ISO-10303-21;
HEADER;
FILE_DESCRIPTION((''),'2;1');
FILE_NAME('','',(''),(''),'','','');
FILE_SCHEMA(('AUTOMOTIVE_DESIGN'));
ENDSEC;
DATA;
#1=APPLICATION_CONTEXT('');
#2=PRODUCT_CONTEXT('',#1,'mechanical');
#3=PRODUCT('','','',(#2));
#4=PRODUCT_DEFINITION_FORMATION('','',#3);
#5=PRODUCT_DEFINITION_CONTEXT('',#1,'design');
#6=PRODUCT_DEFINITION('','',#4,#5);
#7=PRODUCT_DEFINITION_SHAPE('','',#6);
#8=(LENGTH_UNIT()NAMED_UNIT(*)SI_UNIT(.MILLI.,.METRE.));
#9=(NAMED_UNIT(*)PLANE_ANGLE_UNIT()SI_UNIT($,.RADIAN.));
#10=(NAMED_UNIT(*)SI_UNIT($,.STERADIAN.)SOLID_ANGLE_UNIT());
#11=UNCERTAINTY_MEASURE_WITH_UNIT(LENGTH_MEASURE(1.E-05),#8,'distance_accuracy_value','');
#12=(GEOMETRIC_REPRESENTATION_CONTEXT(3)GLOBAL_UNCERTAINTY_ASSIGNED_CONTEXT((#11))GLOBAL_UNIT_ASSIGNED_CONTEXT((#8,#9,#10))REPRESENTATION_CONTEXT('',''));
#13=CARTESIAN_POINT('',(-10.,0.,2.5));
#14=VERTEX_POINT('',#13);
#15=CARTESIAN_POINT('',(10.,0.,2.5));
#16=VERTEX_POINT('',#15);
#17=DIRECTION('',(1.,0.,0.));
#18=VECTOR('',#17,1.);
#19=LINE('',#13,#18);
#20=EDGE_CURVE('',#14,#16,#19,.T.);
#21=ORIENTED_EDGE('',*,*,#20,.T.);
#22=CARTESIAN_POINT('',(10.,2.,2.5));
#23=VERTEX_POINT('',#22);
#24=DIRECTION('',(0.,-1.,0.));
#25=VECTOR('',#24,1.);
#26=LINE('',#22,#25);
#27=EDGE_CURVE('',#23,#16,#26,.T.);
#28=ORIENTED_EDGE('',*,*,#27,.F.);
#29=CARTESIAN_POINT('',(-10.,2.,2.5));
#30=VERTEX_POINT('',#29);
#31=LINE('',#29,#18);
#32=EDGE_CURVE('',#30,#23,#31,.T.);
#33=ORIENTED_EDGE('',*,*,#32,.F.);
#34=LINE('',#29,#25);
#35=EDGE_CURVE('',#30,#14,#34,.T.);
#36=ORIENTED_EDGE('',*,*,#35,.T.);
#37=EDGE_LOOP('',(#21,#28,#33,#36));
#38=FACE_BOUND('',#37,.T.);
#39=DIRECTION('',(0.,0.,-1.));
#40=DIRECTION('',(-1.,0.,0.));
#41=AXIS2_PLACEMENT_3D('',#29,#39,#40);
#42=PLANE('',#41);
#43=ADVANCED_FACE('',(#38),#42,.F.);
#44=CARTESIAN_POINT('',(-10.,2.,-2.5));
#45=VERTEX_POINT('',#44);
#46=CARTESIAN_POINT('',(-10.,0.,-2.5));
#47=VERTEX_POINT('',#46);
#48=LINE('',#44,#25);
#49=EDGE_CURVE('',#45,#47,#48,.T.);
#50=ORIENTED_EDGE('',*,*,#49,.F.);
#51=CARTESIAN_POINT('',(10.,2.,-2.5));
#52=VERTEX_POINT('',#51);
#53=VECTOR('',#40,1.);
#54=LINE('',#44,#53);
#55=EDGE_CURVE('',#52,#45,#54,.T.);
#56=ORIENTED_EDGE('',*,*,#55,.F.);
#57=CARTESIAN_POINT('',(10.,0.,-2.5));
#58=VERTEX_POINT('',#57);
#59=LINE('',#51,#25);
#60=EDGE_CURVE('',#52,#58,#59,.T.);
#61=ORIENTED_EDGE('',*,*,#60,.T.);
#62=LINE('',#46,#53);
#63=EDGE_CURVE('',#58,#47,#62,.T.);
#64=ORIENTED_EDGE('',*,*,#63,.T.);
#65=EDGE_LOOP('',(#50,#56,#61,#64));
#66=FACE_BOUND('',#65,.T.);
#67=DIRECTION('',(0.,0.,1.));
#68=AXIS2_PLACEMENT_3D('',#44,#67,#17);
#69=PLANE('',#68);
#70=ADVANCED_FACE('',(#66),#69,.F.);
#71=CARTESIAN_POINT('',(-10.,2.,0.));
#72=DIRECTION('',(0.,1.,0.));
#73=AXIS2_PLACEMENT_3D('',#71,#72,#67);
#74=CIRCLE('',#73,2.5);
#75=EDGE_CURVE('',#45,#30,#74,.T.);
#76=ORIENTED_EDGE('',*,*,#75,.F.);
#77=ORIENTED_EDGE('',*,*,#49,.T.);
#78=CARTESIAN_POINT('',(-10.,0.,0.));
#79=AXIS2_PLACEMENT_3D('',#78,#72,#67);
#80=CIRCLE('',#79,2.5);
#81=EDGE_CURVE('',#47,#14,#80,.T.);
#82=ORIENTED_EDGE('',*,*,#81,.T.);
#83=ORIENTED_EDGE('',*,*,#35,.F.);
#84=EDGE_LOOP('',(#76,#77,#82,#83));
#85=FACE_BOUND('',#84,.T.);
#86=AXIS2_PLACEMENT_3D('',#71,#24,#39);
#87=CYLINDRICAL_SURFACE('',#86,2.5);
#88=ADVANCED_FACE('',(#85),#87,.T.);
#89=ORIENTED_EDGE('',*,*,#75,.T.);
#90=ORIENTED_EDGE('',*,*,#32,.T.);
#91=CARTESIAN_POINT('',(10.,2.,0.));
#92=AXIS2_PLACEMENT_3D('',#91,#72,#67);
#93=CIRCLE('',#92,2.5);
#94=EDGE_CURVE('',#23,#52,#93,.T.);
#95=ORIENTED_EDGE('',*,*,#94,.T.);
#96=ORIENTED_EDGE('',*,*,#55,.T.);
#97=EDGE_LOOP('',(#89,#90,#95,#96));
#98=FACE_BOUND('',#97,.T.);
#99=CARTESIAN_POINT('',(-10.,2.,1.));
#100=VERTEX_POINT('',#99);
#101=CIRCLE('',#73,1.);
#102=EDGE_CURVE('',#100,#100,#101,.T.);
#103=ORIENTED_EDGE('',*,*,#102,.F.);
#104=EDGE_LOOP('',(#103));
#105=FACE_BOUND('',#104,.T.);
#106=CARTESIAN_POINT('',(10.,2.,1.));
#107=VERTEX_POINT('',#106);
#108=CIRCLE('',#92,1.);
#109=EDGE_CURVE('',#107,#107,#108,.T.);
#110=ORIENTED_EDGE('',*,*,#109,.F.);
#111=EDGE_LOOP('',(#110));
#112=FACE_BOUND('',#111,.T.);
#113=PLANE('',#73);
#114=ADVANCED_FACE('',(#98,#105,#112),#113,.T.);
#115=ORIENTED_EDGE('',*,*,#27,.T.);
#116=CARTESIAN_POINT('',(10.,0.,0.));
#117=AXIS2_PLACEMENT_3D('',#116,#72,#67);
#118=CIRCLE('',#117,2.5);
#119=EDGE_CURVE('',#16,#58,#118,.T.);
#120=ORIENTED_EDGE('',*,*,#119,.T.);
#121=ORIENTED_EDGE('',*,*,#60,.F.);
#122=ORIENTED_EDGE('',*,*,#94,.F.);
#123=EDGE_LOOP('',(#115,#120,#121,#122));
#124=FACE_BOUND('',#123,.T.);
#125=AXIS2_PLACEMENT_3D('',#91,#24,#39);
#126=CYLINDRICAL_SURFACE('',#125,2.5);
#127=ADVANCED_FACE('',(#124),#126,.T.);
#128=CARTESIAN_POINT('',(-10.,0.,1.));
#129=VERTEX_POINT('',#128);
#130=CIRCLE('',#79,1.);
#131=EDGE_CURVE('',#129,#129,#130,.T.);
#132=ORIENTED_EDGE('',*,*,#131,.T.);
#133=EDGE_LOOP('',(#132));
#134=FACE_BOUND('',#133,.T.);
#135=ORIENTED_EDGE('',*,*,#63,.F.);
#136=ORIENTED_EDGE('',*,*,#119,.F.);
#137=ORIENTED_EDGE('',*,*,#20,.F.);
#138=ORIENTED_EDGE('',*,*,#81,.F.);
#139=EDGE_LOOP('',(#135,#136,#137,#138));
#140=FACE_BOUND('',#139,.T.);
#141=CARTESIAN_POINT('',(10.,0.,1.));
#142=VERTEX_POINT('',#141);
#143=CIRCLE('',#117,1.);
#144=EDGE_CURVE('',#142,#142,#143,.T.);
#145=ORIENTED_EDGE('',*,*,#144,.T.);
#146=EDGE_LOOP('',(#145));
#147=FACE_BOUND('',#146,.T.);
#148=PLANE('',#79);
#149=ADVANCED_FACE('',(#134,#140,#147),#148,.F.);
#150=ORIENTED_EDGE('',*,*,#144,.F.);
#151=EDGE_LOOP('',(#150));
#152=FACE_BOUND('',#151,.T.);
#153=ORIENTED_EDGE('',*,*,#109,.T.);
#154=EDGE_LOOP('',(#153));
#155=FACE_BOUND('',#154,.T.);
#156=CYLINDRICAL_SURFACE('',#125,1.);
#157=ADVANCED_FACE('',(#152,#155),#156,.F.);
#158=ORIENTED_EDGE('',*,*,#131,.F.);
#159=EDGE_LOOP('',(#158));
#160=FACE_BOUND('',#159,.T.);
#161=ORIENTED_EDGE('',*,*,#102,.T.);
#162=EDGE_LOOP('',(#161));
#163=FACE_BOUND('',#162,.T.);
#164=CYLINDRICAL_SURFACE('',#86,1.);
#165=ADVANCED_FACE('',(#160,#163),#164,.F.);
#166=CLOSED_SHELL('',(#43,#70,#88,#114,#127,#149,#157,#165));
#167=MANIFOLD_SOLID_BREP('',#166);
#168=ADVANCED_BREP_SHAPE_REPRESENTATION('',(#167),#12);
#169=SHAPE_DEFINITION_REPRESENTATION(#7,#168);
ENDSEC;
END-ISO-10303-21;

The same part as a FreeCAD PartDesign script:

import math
import FreeCAD as App
import Part
import Sketcher
from FreeCAD import Vector
Q = App.Units.Quantity

doc = App.newDocument("Part")
params = doc.addObject("Spreadsheet::Sheet", "Params")
for row, (alias, value) in enumerate([
    ("sketch1_diameter", "2 mm"),
    ("sketch1_radius", "2.5 mm"),
    ("sketch1_width", "20 mm"),
    ("pad1_length", "2 mm"),
], start=1):
    params.set(f"A{row}", alias)
    params.set(f"B{row}", "=" + value)
    params.setAlias(f"B{row}", alias)

body = doc.addObject("PartDesign::Body", "Body")

# Sketch on XZ plane
sketch1 = doc.addObject("Sketcher::SketchObject", "Sketch")
body.addObject(sketch1)
sketch1.AttachmentSupport = (doc.XZ_Plane, [""])
sketch1.MapMode = "FlatFace"
sketch1.addGeometry([
    Part.LineSegment(Vector(10, -2.5, 0), Vector(-10, -2.5, 0)),  # 0
    Part.ArcOfCircle(Part.Circle(Vector(-10, 0, 0), Vector(0, 0, 1), 2.5), math.radians(90), math.radians(270)),  # 1
    Part.LineSegment(Vector(-10, 2.5, 0), Vector(10, 2.5, 0)),  # 2
    Part.ArcOfCircle(Part.Circle(Vector(10, 0, 0), Vector(0, 0, 1), 2.5), math.radians(-90), math.radians(90)),  # 3
    Part.Circle(Vector(10, 0, 0), Vector(0, 0, 1), 1),  # 4
    Part.Circle(Vector(-10, 0, 0), Vector(0, 0, 1), 1),  # 5
], False)
sketch1.addConstraint([
    Sketcher.Constraint("Tangent", 0, 2, 1, 2),
    Sketcher.Constraint("Tangent", 1, 1, 2, 1),
    Sketcher.Constraint("Tangent", 2, 2, 3, 2),
    Sketcher.Constraint("Tangent", 3, 1, 0, 1),
    Sketcher.Constraint("Horizontal", 0),
    Sketcher.Constraint("Horizontal", 2),
    Sketcher.Constraint("Coincident", 4, 3, 3, 3),
    Sketcher.Constraint("Coincident", 5, 3, 1, 3),
    Sketcher.Constraint("Equal", 4, 5),
    Sketcher.Constraint("Symmetric", 1, 3, 3, 3, -1, 1),
    Sketcher.Constraint("Diameter", 4, Q("2 mm")),
    Sketcher.Constraint("Radius", 1, Q("2.5 mm")),
    Sketcher.Constraint("DistanceX", 0, 2, 0, 1, Q("20 mm")),
])
sketch1.setExpression("Constraints[10]", "Params.sketch1_diameter")
sketch1.setExpression("Constraints[11]", "Params.sketch1_radius")
sketch1.setExpression("Constraints[12]", "Params.sketch1_width")
pad1 = doc.addObject("PartDesign::Pad", "Pad")
body.addObject(pad1)
pad1.Profile = sketch1
pad1.setExpression("Length", "Params.pad1_length")
pad1.Reversed = True

doc.recompute()
